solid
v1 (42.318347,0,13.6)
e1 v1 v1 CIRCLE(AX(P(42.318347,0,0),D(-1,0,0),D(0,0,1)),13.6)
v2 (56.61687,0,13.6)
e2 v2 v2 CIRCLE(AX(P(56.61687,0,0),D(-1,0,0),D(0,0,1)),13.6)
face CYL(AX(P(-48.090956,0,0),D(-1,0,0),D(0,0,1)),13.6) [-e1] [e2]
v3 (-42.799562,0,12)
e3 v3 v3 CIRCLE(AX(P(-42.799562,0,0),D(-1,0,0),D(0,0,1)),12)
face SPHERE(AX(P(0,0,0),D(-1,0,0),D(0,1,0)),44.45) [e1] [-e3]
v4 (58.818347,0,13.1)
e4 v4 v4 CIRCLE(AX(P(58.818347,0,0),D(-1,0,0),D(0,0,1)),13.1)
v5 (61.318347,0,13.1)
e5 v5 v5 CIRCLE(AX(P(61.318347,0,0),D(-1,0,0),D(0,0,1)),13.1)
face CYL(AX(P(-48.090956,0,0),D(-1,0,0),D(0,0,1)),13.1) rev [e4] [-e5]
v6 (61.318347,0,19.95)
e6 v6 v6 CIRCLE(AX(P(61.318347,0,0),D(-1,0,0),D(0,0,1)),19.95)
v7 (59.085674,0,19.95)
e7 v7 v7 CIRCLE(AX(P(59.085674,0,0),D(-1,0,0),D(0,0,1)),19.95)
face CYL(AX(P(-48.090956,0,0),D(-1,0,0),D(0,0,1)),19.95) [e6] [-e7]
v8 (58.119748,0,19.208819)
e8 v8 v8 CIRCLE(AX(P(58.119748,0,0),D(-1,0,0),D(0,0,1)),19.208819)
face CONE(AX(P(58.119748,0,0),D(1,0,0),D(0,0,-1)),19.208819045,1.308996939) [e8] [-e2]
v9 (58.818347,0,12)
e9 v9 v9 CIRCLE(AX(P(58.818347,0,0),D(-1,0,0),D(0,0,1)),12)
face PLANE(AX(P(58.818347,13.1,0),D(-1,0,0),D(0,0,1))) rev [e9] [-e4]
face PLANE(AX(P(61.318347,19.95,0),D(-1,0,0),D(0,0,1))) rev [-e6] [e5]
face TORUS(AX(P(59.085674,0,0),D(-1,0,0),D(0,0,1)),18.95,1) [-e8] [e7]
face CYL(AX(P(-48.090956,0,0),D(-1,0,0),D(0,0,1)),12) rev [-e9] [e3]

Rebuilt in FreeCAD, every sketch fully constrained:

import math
import FreeCAD as App
import Part
import Sketcher
from FreeCAD import Vector
Q = App.Units.Quantity

doc = App.newDocument("Part")
params = doc.addObject("Spreadsheet::Sheet", "Params")
for row, (alias, value) in enumerate([
    ("sketch1_radius", "1 mm"),
    ("sketch1_radius2", "44.45 mm"),
    ("sketch1_width", "2.5 mm"),
    ("sketch1_height", "1.1 mm"),
    ("sketch1_height2", "6.85 mm"),
    ("revolution_angle", "360 deg"),
], start=1):
    params.set(f"A{row}", alias)
    params.set(f"B{row}", "=" + value)
    params.setAlias(f"B{row}", alias)

body = doc.addObject("PartDesign::Body", "Body")

# Sketch on XY plane
sketch1 = body.newObject("Sketcher::SketchObject", "Sketch")
sketch1.AttachmentSupport = (doc.getObject("XY_Plane"), [""])
sketch1.MapMode = "FlatFace"
sketch1.addGeometry([
    Part.LineSegment(Vector(-42.8, 12, 0), Vector(58.8, 12, 0)),  # 0
    Part.LineSegment(Vector(58.8, 12, 0), Vector(58.8, 13.1, 0)),  # 1
    Part.LineSegment(Vector(58.8, 13.1, 0), Vector(61.3, 13.1, 0)),  # 2
    Part.LineSegment(Vector(61.3, 13.1, 0), Vector(61.3, 19.9, 0)),  # 3
    Part.LineSegment(Vector(61.3, 19.9, 0), Vector(59.1, 19.9, 0)),  # 4
    Part.ArcOfCircle(Part.Circle(Vector(59.1, 18.9, 0), Vector(0, 0, 1), 1), math.radians(90), math.radians(165)),  # 5
    Part.LineSegment(Vector(58.1, 19.2, 0), Vector(56.6, 13.6, 0)),  # 6
    Part.LineSegment(Vector(56.6, 13.6, 0), Vector(42.3, 13.6, 0)),  # 7
    Part.ArcOfCircle(Part.Circle(Vector(0, 0, 0), Vector(0, 0, 1), 44.5), math.radians(18), math.radians(164)),  # 8
], False)
sketch1.addConstraint([
    Sketcher.Constraint("Coincident", 0, 2, 1, 1),
    Sketcher.Constraint("Coincident", 1, 2, 2, 1),
    Sketcher.Constraint("Coincident", 2, 2, 3, 1),
    Sketcher.Constraint("Coincident", 3, 2, 4, 1),
    Sketcher.Constraint("Tangent", 4, 2, 5, 1),
    Sketcher.Constraint("Tangent", 5, 2, 6, 1),
    Sketcher.Constraint("Coincident", 6, 2, 7, 1),
    Sketcher.Constraint("Coincident", 7, 2, 8, 1),
    Sketcher.Constraint("Coincident", 8, 2, 0, 1),
    Sketcher.Constraint("Horizontal", 0),
    Sketcher.Constraint("Vertical", 1),
    Sketcher.Constraint("Horizontal", 2),
    Sketcher.Constraint("Vertical", 3),
    Sketcher.Constraint("Horizontal", 4),
    Sketcher.Constraint("Horizontal", 7),
    Sketcher.Constraint("Coincident", 8, 3, -1, 1),
    Sketcher.Constraint("Radius", 5, Q("1 mm")),
    Sketcher.Constraint("Angle", 6, Q("-105 deg")),
    Sketcher.Constraint("Radius", 8, Q("44.45 mm")),
    Sketcher.Constraint("DistanceX", 2, 1, 2, 2, Q("2.5 mm")),
    Sketcher.Constraint("DistanceY", 1, 1, 1, 2, Q("1.1 mm")),
    Sketcher.Constraint("DistanceY", -1, 1, 0, 2, Q("12 mm")),
    Sketcher.Constraint("DistanceY", 3, 1, 3, 2, Q("6.85 mm")),
    Sketcher.Constraint("DistanceY", -1, 1, 6, 2, Q("13.6 mm")),
    Sketcher.Constraint("DistanceX", 7, 2, 1, 2, Q("16.5 mm")),
    Sketcher.Constraint("DistanceX", 5, 2, 3, 2, Q("3.198599 mm")),
])
sketch1.setExpression("Constraints[16]", "Params.sketch1_radius")
sketch1.setExpression("Constraints[18]", "Params.sketch1_radius2")
sketch1.setExpression("Constraints[19]", "Params.sketch1_width")
sketch1.setExpression("Constraints[20]", "Params.sketch1_height")
sketch1.setExpression("Constraints[22]", "Params.sketch1_height2")
revolution = body.newObject("PartDesign::Revolution", "Revolution")
revolution.Profile = sketch1
revolution.ReferenceAxis = (sketch1, ["H_Axis"])
revolution.setExpression("Angle", "Params.revolution_angle")

doc.recompute()
